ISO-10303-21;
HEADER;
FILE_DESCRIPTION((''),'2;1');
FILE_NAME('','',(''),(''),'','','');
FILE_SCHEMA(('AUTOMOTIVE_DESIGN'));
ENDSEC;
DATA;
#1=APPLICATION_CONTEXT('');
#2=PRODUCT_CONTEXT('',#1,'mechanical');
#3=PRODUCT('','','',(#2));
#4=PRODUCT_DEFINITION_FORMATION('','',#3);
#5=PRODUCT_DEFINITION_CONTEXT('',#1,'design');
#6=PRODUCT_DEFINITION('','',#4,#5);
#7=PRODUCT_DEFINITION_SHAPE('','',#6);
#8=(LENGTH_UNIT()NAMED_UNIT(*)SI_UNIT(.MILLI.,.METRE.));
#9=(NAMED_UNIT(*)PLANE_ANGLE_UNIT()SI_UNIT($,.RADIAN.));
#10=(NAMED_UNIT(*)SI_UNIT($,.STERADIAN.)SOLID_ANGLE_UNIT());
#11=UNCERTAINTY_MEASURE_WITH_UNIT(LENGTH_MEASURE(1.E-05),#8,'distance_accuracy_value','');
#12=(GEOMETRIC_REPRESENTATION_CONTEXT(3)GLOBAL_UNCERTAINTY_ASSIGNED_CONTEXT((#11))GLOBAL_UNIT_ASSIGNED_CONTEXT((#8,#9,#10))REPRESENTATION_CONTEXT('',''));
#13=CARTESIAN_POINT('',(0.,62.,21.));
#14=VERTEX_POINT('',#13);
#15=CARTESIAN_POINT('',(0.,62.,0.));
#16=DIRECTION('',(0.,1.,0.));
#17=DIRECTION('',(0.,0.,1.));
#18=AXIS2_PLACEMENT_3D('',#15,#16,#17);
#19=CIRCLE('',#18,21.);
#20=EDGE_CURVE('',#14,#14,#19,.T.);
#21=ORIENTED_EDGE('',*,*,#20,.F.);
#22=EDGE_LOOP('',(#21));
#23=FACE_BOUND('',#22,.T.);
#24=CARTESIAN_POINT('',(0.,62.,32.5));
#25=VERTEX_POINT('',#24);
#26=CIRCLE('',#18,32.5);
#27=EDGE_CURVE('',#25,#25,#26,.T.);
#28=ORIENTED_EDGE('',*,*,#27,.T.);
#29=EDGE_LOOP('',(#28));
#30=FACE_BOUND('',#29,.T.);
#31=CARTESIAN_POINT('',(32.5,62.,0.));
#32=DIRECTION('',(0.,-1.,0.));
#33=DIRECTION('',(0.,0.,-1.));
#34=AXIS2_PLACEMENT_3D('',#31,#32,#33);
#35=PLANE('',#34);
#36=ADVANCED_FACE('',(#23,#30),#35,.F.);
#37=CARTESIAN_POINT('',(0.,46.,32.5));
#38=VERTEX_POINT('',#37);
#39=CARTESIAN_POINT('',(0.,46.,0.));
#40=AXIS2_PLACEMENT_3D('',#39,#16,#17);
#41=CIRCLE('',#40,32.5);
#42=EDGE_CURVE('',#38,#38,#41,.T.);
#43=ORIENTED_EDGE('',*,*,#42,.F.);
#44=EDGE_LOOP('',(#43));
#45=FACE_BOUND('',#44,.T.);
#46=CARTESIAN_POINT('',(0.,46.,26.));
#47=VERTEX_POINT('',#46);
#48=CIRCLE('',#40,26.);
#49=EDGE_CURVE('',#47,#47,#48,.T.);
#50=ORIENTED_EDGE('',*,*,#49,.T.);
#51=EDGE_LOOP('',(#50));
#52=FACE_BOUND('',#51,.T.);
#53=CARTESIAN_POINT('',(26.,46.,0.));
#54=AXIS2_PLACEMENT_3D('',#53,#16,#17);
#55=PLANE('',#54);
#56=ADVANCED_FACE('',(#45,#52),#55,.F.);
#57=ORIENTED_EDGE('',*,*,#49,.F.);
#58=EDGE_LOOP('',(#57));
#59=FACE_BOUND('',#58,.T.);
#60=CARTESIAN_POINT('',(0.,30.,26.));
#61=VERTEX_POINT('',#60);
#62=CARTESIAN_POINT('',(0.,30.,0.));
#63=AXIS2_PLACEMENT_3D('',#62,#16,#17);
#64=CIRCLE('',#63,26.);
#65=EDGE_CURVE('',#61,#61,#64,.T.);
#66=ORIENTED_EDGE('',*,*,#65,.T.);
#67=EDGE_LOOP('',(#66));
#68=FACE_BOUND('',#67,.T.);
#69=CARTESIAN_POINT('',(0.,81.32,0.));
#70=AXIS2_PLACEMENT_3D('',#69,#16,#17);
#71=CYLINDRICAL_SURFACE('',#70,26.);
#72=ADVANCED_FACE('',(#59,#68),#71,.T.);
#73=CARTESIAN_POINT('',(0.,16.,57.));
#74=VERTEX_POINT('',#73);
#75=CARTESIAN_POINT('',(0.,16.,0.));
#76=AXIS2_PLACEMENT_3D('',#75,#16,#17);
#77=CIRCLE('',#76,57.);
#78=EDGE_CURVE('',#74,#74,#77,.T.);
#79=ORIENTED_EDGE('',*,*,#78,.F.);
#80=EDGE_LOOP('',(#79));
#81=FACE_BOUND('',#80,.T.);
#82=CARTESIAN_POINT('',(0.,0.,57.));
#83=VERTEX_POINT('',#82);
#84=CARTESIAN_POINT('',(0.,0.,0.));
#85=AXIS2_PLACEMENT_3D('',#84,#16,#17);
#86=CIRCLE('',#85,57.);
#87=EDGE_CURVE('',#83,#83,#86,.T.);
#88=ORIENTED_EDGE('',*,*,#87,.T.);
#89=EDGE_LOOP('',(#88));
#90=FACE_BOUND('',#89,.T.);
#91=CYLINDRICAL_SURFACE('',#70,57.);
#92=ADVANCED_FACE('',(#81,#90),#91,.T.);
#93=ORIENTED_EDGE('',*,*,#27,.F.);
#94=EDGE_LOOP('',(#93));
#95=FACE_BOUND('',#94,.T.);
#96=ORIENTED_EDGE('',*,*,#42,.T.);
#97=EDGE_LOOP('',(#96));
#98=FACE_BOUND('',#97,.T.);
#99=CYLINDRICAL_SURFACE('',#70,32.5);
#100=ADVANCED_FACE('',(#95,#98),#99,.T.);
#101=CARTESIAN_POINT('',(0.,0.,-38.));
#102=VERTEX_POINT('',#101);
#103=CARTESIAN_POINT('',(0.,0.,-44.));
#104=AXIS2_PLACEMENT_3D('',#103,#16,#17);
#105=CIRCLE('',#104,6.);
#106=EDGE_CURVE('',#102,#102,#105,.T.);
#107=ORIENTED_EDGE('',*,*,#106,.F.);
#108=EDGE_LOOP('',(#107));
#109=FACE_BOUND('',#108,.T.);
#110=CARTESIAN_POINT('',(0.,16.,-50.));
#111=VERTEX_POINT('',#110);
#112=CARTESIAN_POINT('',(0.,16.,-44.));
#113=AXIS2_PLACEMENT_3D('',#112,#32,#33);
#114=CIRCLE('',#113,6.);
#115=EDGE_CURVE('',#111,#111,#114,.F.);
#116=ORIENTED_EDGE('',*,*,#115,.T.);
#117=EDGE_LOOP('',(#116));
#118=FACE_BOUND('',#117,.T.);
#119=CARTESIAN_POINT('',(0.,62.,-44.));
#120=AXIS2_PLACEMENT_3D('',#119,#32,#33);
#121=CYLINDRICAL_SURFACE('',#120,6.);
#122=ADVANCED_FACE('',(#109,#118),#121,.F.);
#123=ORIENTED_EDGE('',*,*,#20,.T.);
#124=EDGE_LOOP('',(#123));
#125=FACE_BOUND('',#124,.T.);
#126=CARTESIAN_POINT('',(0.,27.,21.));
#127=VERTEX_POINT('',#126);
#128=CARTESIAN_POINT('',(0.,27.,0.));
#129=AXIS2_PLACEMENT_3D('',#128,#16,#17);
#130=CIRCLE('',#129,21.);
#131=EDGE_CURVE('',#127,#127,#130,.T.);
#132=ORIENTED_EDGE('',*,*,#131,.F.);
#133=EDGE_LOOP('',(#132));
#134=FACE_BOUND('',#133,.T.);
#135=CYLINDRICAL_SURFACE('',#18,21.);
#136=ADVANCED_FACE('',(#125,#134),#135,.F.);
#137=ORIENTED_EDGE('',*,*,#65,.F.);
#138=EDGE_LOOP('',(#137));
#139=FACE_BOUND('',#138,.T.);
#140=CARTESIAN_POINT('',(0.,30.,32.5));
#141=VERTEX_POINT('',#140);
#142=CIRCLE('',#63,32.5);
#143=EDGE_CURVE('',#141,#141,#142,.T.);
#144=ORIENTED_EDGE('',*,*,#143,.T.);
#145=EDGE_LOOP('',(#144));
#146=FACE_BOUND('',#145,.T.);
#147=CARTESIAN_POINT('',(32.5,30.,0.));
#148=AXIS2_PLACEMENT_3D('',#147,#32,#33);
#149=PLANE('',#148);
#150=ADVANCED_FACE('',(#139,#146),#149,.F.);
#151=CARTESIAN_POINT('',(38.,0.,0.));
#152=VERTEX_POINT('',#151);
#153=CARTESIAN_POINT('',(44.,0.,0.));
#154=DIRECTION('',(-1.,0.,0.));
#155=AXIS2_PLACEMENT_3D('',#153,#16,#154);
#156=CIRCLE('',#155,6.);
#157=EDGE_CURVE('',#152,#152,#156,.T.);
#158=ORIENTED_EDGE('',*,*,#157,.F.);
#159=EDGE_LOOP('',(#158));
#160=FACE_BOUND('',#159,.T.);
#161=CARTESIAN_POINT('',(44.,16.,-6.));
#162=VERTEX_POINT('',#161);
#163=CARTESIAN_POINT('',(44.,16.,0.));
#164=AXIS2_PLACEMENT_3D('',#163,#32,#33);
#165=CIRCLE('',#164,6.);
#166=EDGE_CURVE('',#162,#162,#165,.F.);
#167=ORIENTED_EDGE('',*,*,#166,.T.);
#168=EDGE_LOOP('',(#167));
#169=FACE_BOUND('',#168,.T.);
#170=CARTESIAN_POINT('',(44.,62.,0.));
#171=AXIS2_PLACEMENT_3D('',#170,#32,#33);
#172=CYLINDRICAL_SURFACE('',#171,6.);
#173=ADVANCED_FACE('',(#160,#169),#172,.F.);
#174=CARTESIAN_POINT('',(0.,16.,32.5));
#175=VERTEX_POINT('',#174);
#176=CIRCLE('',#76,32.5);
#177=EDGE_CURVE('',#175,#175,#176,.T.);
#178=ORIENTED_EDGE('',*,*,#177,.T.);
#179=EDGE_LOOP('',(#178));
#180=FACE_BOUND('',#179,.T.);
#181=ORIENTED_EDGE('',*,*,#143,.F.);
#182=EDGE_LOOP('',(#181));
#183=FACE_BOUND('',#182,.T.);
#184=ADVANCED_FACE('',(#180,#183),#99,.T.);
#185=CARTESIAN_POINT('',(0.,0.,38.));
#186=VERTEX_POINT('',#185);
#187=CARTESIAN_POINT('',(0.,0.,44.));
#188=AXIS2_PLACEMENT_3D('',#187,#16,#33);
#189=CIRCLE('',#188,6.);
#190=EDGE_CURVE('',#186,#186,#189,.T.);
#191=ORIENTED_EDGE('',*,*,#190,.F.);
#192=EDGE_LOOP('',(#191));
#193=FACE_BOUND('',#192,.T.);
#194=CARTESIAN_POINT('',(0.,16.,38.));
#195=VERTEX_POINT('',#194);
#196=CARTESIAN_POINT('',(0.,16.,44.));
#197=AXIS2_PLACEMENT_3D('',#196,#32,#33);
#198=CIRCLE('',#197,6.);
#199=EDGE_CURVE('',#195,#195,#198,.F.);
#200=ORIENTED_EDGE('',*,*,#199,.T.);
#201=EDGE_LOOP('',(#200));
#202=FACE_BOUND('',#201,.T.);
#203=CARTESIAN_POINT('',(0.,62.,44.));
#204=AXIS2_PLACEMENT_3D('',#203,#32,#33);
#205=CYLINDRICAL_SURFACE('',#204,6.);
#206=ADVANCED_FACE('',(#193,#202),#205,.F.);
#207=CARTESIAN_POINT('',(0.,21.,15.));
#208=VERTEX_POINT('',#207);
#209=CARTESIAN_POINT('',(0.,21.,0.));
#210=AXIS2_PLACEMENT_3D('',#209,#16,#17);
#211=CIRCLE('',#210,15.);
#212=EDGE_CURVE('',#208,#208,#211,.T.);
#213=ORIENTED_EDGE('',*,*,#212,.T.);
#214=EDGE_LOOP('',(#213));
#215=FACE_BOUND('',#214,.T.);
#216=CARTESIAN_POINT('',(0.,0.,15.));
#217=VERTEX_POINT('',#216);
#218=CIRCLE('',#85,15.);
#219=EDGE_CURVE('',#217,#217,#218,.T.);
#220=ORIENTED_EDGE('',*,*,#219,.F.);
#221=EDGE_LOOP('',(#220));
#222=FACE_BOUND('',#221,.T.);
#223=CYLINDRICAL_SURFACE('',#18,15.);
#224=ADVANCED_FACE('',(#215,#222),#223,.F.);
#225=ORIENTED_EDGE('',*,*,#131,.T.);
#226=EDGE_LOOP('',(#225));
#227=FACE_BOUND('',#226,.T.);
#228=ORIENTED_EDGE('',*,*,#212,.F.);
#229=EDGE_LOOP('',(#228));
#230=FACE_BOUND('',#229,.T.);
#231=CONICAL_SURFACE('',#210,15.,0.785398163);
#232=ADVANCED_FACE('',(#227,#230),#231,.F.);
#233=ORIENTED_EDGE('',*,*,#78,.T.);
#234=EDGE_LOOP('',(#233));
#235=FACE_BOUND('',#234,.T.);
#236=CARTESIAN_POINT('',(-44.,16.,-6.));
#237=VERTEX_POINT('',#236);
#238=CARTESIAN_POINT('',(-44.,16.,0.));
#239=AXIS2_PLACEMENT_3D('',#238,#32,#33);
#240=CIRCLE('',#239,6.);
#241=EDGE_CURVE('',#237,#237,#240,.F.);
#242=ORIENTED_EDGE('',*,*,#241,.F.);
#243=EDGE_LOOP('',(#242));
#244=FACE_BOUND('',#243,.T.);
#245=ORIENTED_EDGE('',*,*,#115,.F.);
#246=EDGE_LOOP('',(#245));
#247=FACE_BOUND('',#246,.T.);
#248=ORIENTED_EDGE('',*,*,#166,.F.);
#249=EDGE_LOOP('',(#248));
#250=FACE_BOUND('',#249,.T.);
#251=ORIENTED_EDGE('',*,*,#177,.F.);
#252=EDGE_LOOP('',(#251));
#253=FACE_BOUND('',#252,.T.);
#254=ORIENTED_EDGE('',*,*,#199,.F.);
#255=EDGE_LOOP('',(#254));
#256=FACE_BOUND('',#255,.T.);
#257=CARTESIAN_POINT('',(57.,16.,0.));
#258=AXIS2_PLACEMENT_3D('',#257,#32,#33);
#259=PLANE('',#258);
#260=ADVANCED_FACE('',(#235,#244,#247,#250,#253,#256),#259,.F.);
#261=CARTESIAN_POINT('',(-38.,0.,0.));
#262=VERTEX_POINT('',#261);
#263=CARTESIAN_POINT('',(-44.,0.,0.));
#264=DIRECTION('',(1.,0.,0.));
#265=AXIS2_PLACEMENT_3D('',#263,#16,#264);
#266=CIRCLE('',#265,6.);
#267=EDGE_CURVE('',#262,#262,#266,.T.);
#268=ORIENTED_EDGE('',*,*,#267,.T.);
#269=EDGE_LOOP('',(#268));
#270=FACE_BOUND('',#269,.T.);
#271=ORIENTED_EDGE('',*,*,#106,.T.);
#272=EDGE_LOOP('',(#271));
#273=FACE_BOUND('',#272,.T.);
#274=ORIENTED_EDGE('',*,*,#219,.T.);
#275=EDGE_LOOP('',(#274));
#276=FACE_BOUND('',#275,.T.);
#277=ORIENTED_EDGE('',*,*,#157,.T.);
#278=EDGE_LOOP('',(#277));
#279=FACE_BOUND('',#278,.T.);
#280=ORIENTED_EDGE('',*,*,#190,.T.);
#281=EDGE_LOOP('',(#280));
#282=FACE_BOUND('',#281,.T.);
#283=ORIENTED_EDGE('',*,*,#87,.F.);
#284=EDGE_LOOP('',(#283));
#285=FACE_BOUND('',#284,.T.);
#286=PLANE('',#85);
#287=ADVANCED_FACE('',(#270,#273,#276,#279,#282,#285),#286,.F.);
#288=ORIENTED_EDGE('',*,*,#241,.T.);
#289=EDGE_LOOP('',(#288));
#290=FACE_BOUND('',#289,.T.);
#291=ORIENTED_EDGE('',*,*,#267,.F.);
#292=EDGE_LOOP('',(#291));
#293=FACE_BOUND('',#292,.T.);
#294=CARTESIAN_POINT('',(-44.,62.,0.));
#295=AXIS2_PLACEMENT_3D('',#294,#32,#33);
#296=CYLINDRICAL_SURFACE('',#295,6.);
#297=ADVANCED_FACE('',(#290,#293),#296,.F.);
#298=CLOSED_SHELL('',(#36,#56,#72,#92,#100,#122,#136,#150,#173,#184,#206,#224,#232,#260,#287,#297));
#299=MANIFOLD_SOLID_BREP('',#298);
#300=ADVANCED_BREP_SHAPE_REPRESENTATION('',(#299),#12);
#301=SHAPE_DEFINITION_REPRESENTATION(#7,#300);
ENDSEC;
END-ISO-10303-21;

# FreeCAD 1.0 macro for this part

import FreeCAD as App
import Part
import Sketcher

V = App.Vector


def add_polygon(sketch, points):
    """Adds a closed chain of lines whose ends are joined by coincident constraints."""
    first, n = sketch.GeometryCount, len(points)
    for a, b in zip(points, points[1:] + points[:1]):
        sketch.addGeometry(Part.LineSegment(App.Vector(*a, 0), App.Vector(*b, 0)), False)
    for i in range(n):
        sketch.addConstraint(Sketcher.Constraint("Coincident", first + i, 2, first + (i + 1) % n, 1))

doc = App.newDocument("Part")
body = doc.addObject("PartDesign::Body", "Body")

sketch1 = body.newObject("Sketcher::SketchObject", "Sketch")
sketch1.AttachmentSupport = (doc.getObject("XY_Plane"), [""])
sketch1.MapMode = "FlatFace"
add_polygon(sketch1, [(0, 0), (57, 0), (57, 16), (32, 16), (32, 30), (26, 30), (26, 46), (32, 46), (32, 62), (0, 62)])
sketch1.addConstraint(Sketcher.Constraint("Horizontal", 0))
sketch1.addConstraint(Sketcher.Constraint("Vertical", 1))
sketch1.addConstraint(Sketcher.Constraint("Horizontal", 2))
sketch1.addConstraint(Sketcher.Constraint("Vertical", 3))
sketch1.addConstraint(Sketcher.Constraint("Horizontal", 4))
sketch1.addConstraint(Sketcher.Constraint("Vertical", 5))
sketch1.addConstraint(Sketcher.Constraint("Horizontal", 6))
sketch1.addConstraint(Sketcher.Constraint("Vertical", 7))
sketch1.addConstraint(Sketcher.Constraint("Horizontal", 8))
sketch1.addConstraint(Sketcher.Constraint("Vertical", 9))
sketch1.addConstraint(Sketcher.Constraint("Coincident", 9, 2, -1, 1))
sketch1.addConstraint(Sketcher.Constraint("Vertical", 3, 2, 6, 2))
sketch1.addConstraint(Sketcher.Constraint("Equal", 1, 5))
sketch1.addConstraint(Sketcher.Constraint("Equal", 5, 7))
sketch1.addConstraint(Sketcher.Constraint("DistanceX", 0, 1, 0, 2, 57.0))
sketch1.addConstraint(Sketcher.Constraint("DistanceY", 1, 1, 1, 2, 16.0))
sketch1.addConstraint(Sketcher.Constraint("DistanceY", 3, 1, 3, 2, 14.0))
sketch1.addConstraint(Sketcher.Constraint("DistanceX", 2, 2, 2, 1, 24.5))
sketch1.addConstraint(Sketcher.Constraint("DistanceX", 4, 2, 4, 1, 6.5))
revolution = body.newObject("PartDesign::Revolution", "Revolution")
revolution.Profile = sketch1
revolution.ReferenceAxis = (sketch1, ["V_Axis"])
revolution.Angle = 360

sketch2 = body.newObject("Sketcher::SketchObject", "Sketch001")
sketch2.AttachmentSupport = (doc.getObject("XY_Plane"), [""])
sketch2.MapMode = "FlatFace"
add_polygon(sketch2, [(0, 0), (15, 0), (15, 21), (21, 27), (21, 62), (0, 62)])
sketch2.addConstraint(Sketcher.Constraint("Horizontal", 0))
sketch2.addConstraint(Sketcher.Constraint("Vertical", 1))
sketch2.addConstraint(Sketcher.Constraint("Vertical", 3))
sketch2.addConstraint(Sketcher.Constraint("Horizontal", 4))
sketch2.addConstraint(Sketcher.Constraint("Vertical", 5))
sketch2.addConstraint(Sketcher.Constraint("Coincident", 5, 2, -1, 1))
sketch2.addConstraint(Sketcher.Constraint("Equal", 4, 1))
sketch2.addConstraint(Sketcher.Constraint("DistanceX", 0, 1, 0, 2, 15.0))
sketch2.addConstraint(Sketcher.Constraint("DistanceX", 4, 2, 4, 1, 21.0))
sketch2.addConstraint(Sketcher.Constraint("DistanceY", 3, 1, 3, 2, 35.0))
sketch2.addConstraint(Sketcher.Constraint("DistanceY", 5, 2, 5, 1, 62.0))
groove = body.newObject("PartDesign::Groove", "Groove")
groove.Profile = sketch2
groove.ReferenceAxis = (sketch2, ["V_Axis"])
groove.Angle = 360

sketch3 = body.newObject("Sketcher::SketchObject", "Sketch002")
sketch3.AttachmentSupport = (doc.getObject("XZ_Plane"), [""])
sketch3.MapMode = "FlatFace"
sketch3.addGeometry(Part.Circle(V(0, -44, 0), V(0, 0, 1), 6), False)
sketch3.addConstraint(Sketcher.Constraint("PointOnObject", 0, 3, -2))
sketch3.addConstraint(Sketcher.Constraint("Diameter", 0, 12.0))
sketch3.addConstraint(Sketcher.Constraint("DistanceY", 0, 3, -1, 1, 44.0))
pocket1 = body.newObject("PartDesign::Pocket", "Pocket")
pocket1.Profile = sketch3
pocket1.Type = "ThroughAll"
doc.recompute()

polarpattern = body.newObject("PartDesign::PolarPattern", "PolarPattern")
polarpattern.Originals = [pocket1]
polarpattern.Axis = (doc.getObject("Y_Axis"), [""])
polarpattern.Angle = 360
polarpattern.Occurrences = 4
body.Tip = polarpattern

doc.recompute()
